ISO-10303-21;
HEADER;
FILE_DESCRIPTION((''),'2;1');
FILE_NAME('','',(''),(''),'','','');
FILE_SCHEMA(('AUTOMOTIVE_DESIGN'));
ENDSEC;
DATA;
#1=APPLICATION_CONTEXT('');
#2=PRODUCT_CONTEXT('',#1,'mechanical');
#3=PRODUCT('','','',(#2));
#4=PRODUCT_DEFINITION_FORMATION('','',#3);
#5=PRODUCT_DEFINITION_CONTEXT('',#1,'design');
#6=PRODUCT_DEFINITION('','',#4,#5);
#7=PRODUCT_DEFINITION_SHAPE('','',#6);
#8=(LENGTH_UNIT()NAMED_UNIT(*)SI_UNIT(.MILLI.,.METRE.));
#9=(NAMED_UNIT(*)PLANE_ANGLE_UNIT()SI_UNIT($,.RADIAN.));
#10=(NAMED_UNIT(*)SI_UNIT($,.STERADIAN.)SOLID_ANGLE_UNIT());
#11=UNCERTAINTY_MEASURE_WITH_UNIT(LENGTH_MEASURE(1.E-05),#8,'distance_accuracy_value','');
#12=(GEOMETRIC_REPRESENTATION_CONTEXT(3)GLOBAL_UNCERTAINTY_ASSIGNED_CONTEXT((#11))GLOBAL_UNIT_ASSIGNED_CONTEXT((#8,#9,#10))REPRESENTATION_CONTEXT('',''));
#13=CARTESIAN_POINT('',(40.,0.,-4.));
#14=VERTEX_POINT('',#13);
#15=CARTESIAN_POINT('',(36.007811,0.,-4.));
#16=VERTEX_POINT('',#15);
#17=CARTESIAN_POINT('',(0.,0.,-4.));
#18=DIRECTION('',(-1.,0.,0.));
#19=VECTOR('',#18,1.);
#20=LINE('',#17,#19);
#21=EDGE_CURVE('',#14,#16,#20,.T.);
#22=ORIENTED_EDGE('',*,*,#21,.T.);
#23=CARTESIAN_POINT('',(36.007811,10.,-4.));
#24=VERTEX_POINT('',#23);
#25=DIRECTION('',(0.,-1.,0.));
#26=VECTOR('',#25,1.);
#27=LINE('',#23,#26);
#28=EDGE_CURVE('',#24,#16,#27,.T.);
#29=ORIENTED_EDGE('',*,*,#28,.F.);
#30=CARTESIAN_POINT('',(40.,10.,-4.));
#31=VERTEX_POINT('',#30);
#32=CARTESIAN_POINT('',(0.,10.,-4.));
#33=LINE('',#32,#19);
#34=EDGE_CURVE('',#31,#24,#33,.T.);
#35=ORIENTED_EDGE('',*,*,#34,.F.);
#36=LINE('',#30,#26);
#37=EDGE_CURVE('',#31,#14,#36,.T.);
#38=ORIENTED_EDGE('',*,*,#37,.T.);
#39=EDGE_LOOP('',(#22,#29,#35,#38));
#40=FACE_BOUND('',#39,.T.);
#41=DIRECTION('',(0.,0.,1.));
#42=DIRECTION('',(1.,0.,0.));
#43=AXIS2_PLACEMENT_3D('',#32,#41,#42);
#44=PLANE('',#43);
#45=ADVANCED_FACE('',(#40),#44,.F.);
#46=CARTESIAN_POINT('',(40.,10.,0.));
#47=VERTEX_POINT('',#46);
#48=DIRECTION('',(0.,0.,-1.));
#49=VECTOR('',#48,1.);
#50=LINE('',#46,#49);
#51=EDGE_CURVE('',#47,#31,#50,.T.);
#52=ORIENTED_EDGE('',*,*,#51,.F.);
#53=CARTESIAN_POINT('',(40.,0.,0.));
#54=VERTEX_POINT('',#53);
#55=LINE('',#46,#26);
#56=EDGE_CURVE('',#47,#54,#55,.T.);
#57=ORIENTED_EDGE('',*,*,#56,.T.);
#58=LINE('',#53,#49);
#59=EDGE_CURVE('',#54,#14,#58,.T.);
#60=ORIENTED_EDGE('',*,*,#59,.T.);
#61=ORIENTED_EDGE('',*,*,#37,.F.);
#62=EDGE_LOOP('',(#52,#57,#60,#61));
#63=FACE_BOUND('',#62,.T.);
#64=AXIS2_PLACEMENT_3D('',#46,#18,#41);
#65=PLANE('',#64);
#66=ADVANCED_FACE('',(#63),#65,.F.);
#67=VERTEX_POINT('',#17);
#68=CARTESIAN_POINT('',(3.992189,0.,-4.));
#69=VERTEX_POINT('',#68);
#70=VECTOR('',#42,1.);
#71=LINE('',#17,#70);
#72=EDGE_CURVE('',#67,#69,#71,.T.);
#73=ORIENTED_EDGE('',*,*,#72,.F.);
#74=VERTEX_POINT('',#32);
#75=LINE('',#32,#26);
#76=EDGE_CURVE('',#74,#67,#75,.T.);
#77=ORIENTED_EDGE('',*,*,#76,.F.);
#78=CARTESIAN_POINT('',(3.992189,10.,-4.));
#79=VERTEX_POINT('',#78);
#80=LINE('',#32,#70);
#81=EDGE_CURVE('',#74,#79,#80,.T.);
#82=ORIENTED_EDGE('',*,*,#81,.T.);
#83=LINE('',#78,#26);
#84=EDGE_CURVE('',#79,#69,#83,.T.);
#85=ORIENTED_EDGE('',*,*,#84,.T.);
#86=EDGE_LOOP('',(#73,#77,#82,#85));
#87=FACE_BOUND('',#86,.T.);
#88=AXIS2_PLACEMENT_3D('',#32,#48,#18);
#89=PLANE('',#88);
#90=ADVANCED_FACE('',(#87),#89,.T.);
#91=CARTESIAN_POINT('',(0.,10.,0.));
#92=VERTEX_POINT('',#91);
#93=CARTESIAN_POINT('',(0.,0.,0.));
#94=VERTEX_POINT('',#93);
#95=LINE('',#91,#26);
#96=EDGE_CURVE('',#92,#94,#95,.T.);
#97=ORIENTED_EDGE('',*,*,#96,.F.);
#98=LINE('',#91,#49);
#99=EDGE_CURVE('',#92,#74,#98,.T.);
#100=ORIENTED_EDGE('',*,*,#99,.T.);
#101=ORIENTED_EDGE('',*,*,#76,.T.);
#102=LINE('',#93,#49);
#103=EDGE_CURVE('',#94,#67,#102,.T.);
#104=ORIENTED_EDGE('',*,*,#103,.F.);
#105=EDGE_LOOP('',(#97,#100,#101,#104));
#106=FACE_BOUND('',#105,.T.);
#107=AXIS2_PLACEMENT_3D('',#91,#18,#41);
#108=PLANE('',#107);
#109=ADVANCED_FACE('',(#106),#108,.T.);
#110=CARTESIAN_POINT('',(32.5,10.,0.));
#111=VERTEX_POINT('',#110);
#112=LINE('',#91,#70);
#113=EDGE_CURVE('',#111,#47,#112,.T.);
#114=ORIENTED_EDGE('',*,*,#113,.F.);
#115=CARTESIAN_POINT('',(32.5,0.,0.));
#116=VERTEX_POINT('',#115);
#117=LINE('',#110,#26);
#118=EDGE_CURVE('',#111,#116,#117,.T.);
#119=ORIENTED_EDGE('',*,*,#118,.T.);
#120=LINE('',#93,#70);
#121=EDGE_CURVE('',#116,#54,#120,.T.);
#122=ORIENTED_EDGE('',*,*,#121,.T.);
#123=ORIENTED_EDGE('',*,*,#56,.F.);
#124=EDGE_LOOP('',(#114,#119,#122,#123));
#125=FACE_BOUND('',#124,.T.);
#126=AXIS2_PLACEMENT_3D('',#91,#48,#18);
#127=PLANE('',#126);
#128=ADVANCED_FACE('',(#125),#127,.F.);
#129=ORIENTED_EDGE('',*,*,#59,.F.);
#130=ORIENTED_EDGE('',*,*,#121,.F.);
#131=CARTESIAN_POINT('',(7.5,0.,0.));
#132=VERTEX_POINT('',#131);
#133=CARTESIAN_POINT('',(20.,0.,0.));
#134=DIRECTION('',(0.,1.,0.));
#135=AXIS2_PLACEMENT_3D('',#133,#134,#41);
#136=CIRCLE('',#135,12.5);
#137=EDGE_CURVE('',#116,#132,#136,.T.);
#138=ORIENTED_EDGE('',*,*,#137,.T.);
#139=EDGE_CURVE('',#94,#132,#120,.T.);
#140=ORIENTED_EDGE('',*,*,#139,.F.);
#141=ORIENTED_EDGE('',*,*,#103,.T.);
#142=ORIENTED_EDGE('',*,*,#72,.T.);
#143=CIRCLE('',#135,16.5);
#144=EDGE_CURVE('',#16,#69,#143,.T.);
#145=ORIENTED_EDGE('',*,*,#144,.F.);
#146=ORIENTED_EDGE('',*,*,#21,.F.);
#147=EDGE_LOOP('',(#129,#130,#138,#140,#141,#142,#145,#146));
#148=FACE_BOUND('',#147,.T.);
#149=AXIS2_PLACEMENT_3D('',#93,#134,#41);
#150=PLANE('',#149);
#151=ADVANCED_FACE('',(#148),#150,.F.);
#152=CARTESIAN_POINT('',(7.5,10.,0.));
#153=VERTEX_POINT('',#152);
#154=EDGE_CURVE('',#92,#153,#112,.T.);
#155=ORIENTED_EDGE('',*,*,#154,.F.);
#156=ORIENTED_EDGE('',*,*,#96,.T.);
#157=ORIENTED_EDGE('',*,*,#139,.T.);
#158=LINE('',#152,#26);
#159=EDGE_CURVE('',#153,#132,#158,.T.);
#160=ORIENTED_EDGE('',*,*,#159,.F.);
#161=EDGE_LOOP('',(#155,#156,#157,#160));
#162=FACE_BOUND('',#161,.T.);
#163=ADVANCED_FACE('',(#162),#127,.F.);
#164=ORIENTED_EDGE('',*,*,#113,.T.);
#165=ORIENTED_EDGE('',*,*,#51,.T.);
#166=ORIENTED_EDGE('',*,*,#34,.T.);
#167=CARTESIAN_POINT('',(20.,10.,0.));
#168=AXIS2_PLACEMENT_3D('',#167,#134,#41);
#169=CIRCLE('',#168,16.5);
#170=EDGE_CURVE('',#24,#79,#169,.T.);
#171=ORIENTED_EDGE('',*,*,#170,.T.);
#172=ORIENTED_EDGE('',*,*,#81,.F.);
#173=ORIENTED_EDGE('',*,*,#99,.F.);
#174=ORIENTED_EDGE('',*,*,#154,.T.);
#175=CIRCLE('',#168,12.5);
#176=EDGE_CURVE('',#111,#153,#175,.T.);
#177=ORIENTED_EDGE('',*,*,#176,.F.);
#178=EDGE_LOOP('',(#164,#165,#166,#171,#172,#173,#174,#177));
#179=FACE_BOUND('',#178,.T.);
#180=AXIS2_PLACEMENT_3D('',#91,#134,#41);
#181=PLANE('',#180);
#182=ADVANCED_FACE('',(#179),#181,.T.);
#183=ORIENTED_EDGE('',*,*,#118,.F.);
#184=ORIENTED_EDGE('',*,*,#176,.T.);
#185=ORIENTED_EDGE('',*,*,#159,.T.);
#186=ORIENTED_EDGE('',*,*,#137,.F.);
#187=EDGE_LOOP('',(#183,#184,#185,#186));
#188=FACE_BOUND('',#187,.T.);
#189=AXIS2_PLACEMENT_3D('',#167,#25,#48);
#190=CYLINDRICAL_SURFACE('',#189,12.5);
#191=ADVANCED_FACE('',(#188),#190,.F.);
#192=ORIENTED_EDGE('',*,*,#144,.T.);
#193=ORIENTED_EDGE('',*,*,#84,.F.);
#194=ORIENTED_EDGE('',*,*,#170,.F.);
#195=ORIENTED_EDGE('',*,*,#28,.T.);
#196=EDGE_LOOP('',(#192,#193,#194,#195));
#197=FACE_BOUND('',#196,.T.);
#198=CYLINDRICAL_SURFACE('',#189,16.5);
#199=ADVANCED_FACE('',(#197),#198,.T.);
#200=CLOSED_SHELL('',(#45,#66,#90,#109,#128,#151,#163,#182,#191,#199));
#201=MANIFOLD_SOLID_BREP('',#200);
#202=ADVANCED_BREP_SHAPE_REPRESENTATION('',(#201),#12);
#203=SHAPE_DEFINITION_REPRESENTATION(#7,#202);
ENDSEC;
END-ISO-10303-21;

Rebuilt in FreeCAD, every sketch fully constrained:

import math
import FreeCAD as App
import Part
import Sketcher

doc = App.newDocument("Part")
body = doc.addObject("PartDesign::Body", "Body")

sketch1 = doc.addObject("Sketcher::SketchObject", "Sketch")
body.addObject(sketch1)
sketch1.AttachmentSupport = (doc.XZ_Plane, [""])
sketch1.MapMode = "FlatFace"
sketch1.addGeometry([
    Part.LineSegment(App.Vector(4, -4, 0), App.Vector(0, -4, 0)),
    Part.LineSegment(App.Vector(0, -4, 0), App.Vector(0, 0, 0)),
    Part.LineSegment(App.Vector(0, 0, 0), App.Vector(7.5, 0, 0)),
    Part.ArcOfCircle(Part.Circle(App.Vector(20, 0, 0), App.Vector(0, 0, 1), 12.5), math.radians(180), math.radians(360)),
    Part.LineSegment(App.Vector(32.5, 0, 0), App.Vector(40, 0, 0)),
    Part.LineSegment(App.Vector(40, 0, 0), App.Vector(40, -4, 0)),
    Part.LineSegment(App.Vector(40, -4, 0), App.Vector(36, -4, 0)),
    Part.ArcOfCircle(Part.Circle(App.Vector(20, 0, 0), App.Vector(0, 0, 1), 16.5), math.radians(-166), math.radians(-14)),
], False)
sketch1.addConstraint([
    Sketcher.Constraint("Coincident", 0, 2, 1, 1),
    Sketcher.Constraint("Coincident", 1, 2, 2, 1),
    Sketcher.Constraint("Coincident", 2, 2, 3, 1),
    Sketcher.Constraint("Coincident", 3, 2, 4, 1),
    Sketcher.Constraint("Coincident", 4, 2, 5, 1),
    Sketcher.Constraint("Coincident", 5, 2, 6, 1),
    Sketcher.Constraint("Coincident", 6, 2, 7, 2),
    Sketcher.Constraint("Coincident", 7, 1, 0, 1),
    Sketcher.Constraint("Horizontal", 0),
    Sketcher.Constraint("Vertical", 1),
    Sketcher.Constraint("Horizontal", 2),
    Sketcher.Constraint("Horizontal", 4),
    Sketcher.Constraint("Vertical", 5),
    Sketcher.Constraint("Horizontal", 6),
    Sketcher.Constraint("Coincident", 1, 2, -1, 1),
    Sketcher.Constraint("Coincident", 7, 3, 3, 3),
    Sketcher.Constraint("PointOnObject", 3, 3, -1),
    Sketcher.Constraint("PointOnObject", 3, 2, -1),
    Sketcher.Constraint("Horizontal", 0, 2, 5, 2),
    Sketcher.Constraint("Equal", 2, 4),
    Sketcher.Constraint("Radius", 3, 12.5),
    Sketcher.Constraint("Radius", 7, 16.5),
    Sketcher.Constraint("DistanceY", 1, 1, 1, 2, 4.0),
    Sketcher.Constraint("DistanceX", 2, 1, 2, 2, 7.5),
])
pad1 = doc.addObject("PartDesign::Pad", "Pad")
body.addObject(pad1)
pad1.Profile = sketch1
pad1.Length = 10
pad1.Reversed = True

doc.recompute()
